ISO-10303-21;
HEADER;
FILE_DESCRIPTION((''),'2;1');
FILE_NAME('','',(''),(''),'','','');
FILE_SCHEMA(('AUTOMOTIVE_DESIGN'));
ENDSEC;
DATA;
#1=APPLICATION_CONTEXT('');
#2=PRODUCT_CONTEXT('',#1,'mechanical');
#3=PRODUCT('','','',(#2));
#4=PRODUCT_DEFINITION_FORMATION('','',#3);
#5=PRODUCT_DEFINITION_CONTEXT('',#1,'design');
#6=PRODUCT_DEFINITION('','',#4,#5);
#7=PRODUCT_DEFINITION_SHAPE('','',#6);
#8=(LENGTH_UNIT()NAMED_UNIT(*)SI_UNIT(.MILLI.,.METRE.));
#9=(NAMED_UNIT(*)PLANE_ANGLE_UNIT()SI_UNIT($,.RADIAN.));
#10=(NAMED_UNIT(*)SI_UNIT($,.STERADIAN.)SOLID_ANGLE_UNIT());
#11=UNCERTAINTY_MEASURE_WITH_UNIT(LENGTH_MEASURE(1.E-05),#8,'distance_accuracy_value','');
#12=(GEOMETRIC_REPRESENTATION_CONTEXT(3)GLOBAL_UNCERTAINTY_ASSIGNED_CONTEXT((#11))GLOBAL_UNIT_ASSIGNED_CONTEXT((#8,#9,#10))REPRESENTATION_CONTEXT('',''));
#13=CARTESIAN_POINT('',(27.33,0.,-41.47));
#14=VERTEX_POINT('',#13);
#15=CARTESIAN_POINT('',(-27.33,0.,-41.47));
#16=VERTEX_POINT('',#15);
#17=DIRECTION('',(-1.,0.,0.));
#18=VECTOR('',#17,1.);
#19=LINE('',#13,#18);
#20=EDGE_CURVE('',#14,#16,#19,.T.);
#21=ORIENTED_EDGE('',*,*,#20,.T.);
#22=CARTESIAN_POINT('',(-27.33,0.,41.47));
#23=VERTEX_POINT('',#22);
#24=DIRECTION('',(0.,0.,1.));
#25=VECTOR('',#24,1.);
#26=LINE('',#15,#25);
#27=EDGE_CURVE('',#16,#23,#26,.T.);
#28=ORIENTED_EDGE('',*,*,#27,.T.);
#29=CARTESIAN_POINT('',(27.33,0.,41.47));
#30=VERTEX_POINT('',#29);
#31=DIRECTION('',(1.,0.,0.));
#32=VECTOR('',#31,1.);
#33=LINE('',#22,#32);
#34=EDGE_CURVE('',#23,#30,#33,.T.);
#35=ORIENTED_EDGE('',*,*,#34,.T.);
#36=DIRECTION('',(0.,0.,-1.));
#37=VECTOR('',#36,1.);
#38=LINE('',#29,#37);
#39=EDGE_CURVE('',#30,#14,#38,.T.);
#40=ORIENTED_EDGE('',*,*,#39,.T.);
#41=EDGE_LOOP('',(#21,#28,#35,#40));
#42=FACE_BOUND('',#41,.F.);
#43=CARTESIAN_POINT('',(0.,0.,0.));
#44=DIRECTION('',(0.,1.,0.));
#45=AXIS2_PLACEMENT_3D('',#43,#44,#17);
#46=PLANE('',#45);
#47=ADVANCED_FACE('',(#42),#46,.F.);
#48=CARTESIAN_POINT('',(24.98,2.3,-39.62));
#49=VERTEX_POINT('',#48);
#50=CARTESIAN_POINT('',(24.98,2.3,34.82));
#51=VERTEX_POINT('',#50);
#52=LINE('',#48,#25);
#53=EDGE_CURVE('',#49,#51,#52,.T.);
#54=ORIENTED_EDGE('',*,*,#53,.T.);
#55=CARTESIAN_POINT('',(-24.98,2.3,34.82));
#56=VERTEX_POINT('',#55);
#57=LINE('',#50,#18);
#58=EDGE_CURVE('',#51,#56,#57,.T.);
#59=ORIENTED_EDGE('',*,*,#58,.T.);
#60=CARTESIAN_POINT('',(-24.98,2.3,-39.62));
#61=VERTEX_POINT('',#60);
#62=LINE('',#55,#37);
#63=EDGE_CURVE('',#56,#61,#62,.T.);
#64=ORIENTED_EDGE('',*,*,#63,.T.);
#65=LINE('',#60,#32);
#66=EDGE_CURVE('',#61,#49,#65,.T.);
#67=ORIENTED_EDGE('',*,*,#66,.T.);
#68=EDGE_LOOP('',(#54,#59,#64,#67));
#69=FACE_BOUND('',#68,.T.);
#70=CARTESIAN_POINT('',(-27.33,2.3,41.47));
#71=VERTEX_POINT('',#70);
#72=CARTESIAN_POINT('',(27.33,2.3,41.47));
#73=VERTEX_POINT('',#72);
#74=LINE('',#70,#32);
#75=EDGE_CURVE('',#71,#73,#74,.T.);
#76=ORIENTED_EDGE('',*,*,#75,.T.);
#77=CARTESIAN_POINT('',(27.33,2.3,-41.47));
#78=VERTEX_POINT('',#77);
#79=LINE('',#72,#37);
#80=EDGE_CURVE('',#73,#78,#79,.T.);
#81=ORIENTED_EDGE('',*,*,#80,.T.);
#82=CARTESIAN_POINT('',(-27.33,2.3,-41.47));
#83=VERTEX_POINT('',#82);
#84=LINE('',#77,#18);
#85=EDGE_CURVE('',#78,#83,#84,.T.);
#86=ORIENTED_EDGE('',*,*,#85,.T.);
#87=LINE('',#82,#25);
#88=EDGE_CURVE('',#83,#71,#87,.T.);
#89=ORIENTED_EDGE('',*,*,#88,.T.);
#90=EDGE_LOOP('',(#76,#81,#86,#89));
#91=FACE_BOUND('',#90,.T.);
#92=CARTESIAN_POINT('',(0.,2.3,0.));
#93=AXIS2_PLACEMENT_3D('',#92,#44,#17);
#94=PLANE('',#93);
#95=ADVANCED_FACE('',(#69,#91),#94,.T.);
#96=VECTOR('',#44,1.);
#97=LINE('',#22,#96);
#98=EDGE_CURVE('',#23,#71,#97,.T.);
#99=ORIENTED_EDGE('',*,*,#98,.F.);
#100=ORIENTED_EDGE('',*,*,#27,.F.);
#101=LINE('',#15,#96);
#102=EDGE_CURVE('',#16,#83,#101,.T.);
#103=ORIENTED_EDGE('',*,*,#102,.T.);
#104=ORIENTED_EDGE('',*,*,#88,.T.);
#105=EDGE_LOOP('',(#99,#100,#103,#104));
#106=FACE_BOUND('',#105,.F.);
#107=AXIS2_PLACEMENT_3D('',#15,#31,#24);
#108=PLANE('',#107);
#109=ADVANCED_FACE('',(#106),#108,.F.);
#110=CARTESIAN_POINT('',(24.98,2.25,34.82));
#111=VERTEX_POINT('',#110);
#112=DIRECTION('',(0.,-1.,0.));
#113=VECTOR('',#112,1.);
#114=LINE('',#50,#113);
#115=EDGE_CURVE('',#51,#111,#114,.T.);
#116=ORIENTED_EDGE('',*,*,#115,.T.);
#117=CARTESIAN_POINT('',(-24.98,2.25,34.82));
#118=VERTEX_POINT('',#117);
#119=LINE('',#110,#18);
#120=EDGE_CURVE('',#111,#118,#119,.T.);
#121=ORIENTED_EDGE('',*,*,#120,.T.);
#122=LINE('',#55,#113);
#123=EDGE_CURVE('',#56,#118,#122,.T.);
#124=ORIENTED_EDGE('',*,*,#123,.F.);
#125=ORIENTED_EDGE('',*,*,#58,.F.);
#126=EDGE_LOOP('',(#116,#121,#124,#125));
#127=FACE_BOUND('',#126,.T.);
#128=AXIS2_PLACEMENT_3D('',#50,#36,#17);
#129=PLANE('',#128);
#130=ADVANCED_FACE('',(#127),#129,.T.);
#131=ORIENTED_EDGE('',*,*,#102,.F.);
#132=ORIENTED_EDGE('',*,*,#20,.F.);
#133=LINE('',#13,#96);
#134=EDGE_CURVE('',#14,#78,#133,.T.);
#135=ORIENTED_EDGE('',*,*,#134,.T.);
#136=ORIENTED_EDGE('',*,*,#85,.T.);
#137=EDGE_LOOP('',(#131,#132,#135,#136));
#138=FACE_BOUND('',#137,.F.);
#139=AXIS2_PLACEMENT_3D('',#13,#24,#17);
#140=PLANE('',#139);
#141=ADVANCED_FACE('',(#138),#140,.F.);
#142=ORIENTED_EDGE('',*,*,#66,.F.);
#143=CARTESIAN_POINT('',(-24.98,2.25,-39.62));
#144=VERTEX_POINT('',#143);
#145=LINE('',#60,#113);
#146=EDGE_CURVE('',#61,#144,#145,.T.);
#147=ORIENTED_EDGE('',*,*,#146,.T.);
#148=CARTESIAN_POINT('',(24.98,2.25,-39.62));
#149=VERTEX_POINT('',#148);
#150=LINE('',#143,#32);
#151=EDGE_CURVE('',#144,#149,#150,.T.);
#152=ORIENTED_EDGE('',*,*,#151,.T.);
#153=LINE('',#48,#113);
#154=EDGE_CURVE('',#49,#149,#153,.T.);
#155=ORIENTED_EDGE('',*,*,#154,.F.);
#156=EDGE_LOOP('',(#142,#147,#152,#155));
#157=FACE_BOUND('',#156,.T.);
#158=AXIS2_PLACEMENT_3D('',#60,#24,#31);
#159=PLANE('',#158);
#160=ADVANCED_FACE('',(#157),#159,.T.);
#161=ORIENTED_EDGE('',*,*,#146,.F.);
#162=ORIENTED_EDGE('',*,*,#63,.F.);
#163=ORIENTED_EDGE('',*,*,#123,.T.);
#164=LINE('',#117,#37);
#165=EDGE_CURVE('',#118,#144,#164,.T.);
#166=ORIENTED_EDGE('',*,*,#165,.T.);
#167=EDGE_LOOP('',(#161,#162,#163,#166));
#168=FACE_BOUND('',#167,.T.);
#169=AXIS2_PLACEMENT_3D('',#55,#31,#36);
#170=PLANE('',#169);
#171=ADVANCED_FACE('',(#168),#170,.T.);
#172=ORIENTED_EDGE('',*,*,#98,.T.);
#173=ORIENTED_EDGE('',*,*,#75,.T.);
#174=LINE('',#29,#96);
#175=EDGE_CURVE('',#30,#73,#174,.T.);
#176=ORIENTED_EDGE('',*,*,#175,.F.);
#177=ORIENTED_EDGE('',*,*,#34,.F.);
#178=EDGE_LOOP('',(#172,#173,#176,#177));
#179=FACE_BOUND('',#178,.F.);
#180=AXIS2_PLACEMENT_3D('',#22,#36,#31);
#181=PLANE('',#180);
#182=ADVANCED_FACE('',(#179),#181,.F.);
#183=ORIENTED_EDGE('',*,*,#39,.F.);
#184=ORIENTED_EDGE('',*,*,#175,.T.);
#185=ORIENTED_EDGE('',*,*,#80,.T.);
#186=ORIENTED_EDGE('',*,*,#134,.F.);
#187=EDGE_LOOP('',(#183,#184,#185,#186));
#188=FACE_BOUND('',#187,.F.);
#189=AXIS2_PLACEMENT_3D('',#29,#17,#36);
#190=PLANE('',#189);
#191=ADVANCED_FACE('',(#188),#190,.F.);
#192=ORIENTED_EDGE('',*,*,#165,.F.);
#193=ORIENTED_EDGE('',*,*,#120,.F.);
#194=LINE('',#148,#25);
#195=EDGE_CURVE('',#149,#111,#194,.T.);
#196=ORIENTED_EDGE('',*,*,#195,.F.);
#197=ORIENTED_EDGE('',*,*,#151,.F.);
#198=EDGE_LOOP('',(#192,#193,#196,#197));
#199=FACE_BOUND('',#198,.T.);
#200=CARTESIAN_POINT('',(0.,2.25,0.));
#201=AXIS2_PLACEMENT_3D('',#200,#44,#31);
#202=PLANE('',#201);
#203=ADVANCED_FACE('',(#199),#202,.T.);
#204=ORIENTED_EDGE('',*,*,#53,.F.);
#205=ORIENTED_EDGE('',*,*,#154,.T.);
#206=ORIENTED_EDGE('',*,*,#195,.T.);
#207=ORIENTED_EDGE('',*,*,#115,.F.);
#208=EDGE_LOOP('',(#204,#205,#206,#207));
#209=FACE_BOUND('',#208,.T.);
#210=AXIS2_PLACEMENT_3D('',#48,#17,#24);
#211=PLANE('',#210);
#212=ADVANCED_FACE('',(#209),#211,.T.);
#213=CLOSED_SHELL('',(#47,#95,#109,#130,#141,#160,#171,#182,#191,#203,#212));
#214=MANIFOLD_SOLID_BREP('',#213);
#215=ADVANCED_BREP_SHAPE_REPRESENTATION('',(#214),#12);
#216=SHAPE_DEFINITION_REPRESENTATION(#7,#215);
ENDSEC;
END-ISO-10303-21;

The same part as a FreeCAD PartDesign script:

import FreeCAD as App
import Part
import Sketcher
Q = App.Units.Quantity

doc = App.newDocument("Part")
body = doc.addObject("PartDesign::Body", "Body")

# Sketch on XZ plane
sketch1 = body.newObject("Sketcher::SketchObject", "Sketch")
sketch1.AttachmentSupport = (doc.getObject("XZ_Plane"), [""])
sketch1.MapMode = "FlatFace"
sketch1.addGeometry([
    Part.LineSegment(App.Vector(-27, -41, 0), App.Vector(-27, 41, 0)),
    Part.LineSegment(App.Vector(-27, 41, 0), App.Vector(27, 41, 0)),
    Part.LineSegment(App.Vector(27, 41, 0), App.Vector(27, -41, 0)),
    Part.LineSegment(App.Vector(27, -41, 0), App.Vector(-27, -41, 0)),
], False)
sketch1.addConstraint([
    Sketcher.Constraint("Coincident", 0, 2, 1, 1),
    Sketcher.Constraint("Coincident", 1, 2, 2, 1),
    Sketcher.Constraint("Coincident", 2, 2, 3, 1),
    Sketcher.Constraint("Coincident", 3, 2, 0, 1),
    Sketcher.Constraint("Vertical", 0),
    Sketcher.Constraint("Horizontal", 1),
    Sketcher.Constraint("Vertical", 2),
    Sketcher.Constraint("Horizontal", 3),
    Sketcher.Constraint("Symmetric", 0, 2, 2, 2, -1, 1),
    Sketcher.Constraint("DistanceX", 1, 1, 1, 2, Q("54.66 mm")),
    Sketcher.Constraint("DistanceY", 0, 1, 0, 2, Q("82.94 mm")),
])
pad1 = body.newObject("PartDesign::Pad", "Pad")
pad1.Profile = sketch1
pad1.Length = 2.3
pad1.Reversed = True

# Sketch on XZ plane
sketch2 = body.newObject("Sketcher::SketchObject", "Sketch001")
sketch2.AttachmentSupport = (doc.getObject("XZ_Plane"), [""])
sketch2.MapMode = "FlatFace"
sketch2.AttachmentOffset = App.Placement(App.Vector(0, 0, -2.3), App.Rotation())
sketch2.addGeometry([
    Part.LineSegment(App.Vector(25, -40, 0), App.Vector(-25, -40, 0)),
    Part.LineSegment(App.Vector(-25, -40, 0), App.Vector(-25, 35, 0)),
    Part.LineSegment(App.Vector(-25, 35, 0), App.Vector(25, 35, 0)),
    Part.LineSegment(App.Vector(25, 35, 0), App.Vector(25, -40, 0)),
], False)
sketch2.addConstraint([
    Sketcher.Constraint("Coincident", 0, 2, 1, 1),
    Sketcher.Constraint("Coincident", 1, 2, 2, 1),
    Sketcher.Constraint("Coincident", 2, 2, 3, 1),
    Sketcher.Constraint("Coincident", 3, 2, 0, 1),
    Sketcher.Constraint("Horizontal", 0),
    Sketcher.Constraint("Vertical", 1),
    Sketcher.Constraint("Horizontal", 2),
    Sketcher.Constraint("Vertical", 3),
    Sketcher.Constraint("DistanceX", 0, 2, 0, 1, Q("49.96 mm")),
    Sketcher.Constraint("DistanceY", 1, 1, 1, 2, Q("74.44 mm")),
    Sketcher.Constraint("DistanceX", 0, 2, -1, 1, Q("24.98 mm")),
    Sketcher.Constraint("DistanceY", 0, 2, -1, 1, Q("39.62 mm")),
])
pocket1 = body.newObject("PartDesign::Pocket", "Pocket")
pocket1.Profile = sketch2
pocket1.Length = 0.05
pocket1.Reversed = True

doc.recompute()
